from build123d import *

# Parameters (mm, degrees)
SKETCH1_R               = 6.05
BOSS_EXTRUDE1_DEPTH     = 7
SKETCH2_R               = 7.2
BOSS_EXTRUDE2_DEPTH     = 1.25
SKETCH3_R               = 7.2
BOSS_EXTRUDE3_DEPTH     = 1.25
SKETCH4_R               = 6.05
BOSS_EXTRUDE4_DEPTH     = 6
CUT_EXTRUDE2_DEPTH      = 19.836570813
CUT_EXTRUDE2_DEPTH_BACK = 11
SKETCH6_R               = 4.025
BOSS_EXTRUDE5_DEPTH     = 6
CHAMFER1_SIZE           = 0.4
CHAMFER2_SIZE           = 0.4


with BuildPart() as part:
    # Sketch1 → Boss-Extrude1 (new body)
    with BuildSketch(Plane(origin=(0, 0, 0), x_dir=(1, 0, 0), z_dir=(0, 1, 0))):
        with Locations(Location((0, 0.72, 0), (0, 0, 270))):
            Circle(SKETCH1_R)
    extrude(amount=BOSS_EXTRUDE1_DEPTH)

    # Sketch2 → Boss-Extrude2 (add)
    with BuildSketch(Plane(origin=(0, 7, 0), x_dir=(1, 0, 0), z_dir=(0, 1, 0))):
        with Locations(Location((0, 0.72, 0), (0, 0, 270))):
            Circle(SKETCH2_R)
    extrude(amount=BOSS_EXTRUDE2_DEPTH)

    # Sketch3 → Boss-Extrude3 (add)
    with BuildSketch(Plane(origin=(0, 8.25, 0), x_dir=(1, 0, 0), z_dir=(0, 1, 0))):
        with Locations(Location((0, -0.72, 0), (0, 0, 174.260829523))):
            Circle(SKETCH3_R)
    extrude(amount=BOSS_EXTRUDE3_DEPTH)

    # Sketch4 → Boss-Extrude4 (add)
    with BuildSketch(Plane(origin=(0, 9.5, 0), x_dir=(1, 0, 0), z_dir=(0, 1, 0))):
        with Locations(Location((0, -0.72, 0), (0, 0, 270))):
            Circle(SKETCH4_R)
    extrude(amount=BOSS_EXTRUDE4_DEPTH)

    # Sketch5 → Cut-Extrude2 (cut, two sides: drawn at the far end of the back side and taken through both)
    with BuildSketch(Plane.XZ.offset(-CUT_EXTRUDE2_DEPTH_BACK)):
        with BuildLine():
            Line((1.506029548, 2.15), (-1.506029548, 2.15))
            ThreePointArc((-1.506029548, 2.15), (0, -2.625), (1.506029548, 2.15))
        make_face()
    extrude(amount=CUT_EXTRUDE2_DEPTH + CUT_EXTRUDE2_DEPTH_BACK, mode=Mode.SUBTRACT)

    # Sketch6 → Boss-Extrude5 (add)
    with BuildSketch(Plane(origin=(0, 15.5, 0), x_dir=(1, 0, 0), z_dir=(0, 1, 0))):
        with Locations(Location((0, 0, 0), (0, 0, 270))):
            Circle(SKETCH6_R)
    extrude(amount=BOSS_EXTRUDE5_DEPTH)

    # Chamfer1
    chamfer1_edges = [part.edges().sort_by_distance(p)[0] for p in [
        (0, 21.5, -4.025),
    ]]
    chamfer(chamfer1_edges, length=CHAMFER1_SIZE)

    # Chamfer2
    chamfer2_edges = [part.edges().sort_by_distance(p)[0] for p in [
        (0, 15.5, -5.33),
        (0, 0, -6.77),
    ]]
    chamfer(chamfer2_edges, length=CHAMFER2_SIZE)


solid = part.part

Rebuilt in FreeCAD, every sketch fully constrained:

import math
import FreeCAD as App
import Part
import Sketcher

V = App.Vector


def edges_at(feature, points):
    """Names of the edges that pass closest to the given points."""
    edges = feature.Shape.Edges
    near = lambda p: min(range(len(edges)), key=lambda i: edges[i].distToShape(Part.Vertex(*p))[0])
    return sorted({f"Edge{near(p) + 1}" for p in points})

doc = App.newDocument("Part")
params = doc.addObject("Spreadsheet::Sheet", "Params")
for row, (alias, value) in enumerate([
    ("sketch1_diameter", "12.1 mm"),
    ("pad1_length", "7 mm"),
    ("sketch2_diameter", "14.4 mm"),
    ("pad2_length", "1.25 mm"),
    ("sketch3_diameter", "14.4 mm"),
    ("pad3_length", "1.25 mm"),
    ("sketch4_diameter", "12.1 mm"),
    ("pad4_length", "6 mm"),
    ("pocket1_length", "19.836571 mm"),
    ("pocket1_length2", "11 mm"),
    ("sketch6_diameter", "8.05 mm"),
    ("pad5_length", "6 mm"),
    ("chamfer_size", "0.4 mm"),
    ("chamfer2_size", "0.4 mm"),
], start=1):
    params.set(f"A{row}", alias)
    params.set(f"B{row}", "=" + value)
    params.setAlias(f"B{row}", alias)

body = doc.addObject("PartDesign::Body", "Body")

sketch1 = doc.addObject("Sketcher::SketchObject", "Sketch")
body.addObject(sketch1)
sketch1.AttachmentSupport = (doc.XZ_Plane, [""])
sketch1.MapMode = "FlatFace"
sketch1.addGeometry(Part.Circle(V(0, -0.72, 0), V(0, 0, 1), 6.05), False)
sketch1.addConstraint(Sketcher.Constraint("PointOnObject", 0, 3, -2))
sketch1.addConstraint(Sketcher.Constraint("Diameter", 0, 12.1))
sketch1.addConstraint(Sketcher.Constraint("DistanceY", 0, 3, -1, 1, 0.72))
sketch1.setExpression("Constraints[1]", "Params.sketch1_diameter")
pad1 = doc.addObject("PartDesign::Pad", "Pad")
body.addObject(pad1)
pad1.Profile = sketch1
pad1.setExpression("Length", "Params.pad1_length")
pad1.Reversed = True

sketch2 = doc.addObject("Sketcher::SketchObject", "Sketch001")
body.addObject(sketch2)
sketch2.AttachmentSupport = (doc.XZ_Plane, [""])
sketch2.MapMode = "FlatFace"
sketch2.AttachmentOffset = App.Placement(V(0, 0, -7), App.Rotation())
sketch2.addGeometry(Part.Circle(V(0, -0.72, 0), V(0, 0, 1), 7.2), False)
sketch2.addConstraint(Sketcher.Constraint("PointOnObject", 0, 3, -2))
sketch2.addConstraint(Sketcher.Constraint("Diameter", 0, 14.4))
sketch2.addConstraint(Sketcher.Constraint("DistanceY", 0, 3, -1, 1, 0.72))
sketch2.setExpression("Constraints[1]", "Params.sketch2_diameter")
pad2 = doc.addObject("PartDesign::Pad", "Pad001")
body.addObject(pad2)
pad2.Profile = sketch2
pad2.setExpression("Length", "Params.pad2_length")
pad2.Reversed = True

sketch3 = doc.addObject("Sketcher::SketchObject", "Sketch002")
body.addObject(sketch3)
sketch3.AttachmentSupport = (doc.XZ_Plane, [""])
sketch3.MapMode = "FlatFace"
sketch3.AttachmentOffset = App.Placement(V(0, 0, -8.25), App.Rotation())
sketch3.addGeometry(Part.Circle(V(0, 0.72, 0), V(0, 0, 1), 7.2), False)
sketch3.addConstraint(Sketcher.Constraint("PointOnObject", 0, 3, -2))
sketch3.addConstraint(Sketcher.Constraint("Diameter", 0, 14.4))
sketch3.addConstraint(Sketcher.Constraint("DistanceY", -1, 1, 0, 3, 0.72))
sketch3.setExpression("Constraints[1]", "Params.sketch3_diameter")
pad3 = doc.addObject("PartDesign::Pad", "Pad002")
body.addObject(pad3)
pad3.Profile = sketch3
pad3.setExpression("Length", "Params.pad3_length")
pad3.Reversed = True

sketch4 = doc.addObject("Sketcher::SketchObject", "Sketch003")
body.addObject(sketch4)
sketch4.AttachmentSupport = (doc.XZ_Plane, [""])
sketch4.MapMode = "FlatFace"
sketch4.AttachmentOffset = App.Placement(V(0, 0, -9.5), App.Rotation())
sketch4.addGeometry(Part.Circle(V(0, 0.72, 0), V(0, 0, 1), 6.05), False)
sketch4.addConstraint(Sketcher.Constraint("PointOnObject", 0, 3, -2))
sketch4.addConstraint(Sketcher.Constraint("Diameter", 0, 12.1))
sketch4.addConstraint(Sketcher.Constraint("DistanceY", -1, 1, 0, 3, 0.72))
sketch4.setExpression("Constraints[1]", "Params.sketch4_diameter")
pad4 = doc.addObject("PartDesign::Pad", "Pad003")
body.addObject(pad4)
pad4.Profile = sketch4
pad4.setExpression("Length", "Params.pad4_length")
pad4.Reversed = True

sketch5 = doc.addObject("Sketcher::SketchObject", "Sketch004")
body.addObject(sketch5)
sketch5.AttachmentSupport = (doc.XZ_Plane, [""])
sketch5.MapMode = "FlatFace"
sketch5.addGeometry(Part.LineSegment(V(1.50603, 2.15, 0), V(-1.50603, 2.15, 0)), False)
sketch5.addGeometry(Part.ArcOfCircle(Part.Circle(V(0, 0, 0), V(0, 0, 1), 2.625), math.radians(125.01043), math.radians(414.98957)), False)
sketch5.addConstraint(Sketcher.Constraint("Coincident", 0, 1, 1, 2))
sketch5.addConstraint(Sketcher.Constraint("Coincident", 1, 1, 0, 2))
sketch5.addConstraint(Sketcher.Constraint("Horizontal", 0))
sketch5.addConstraint(Sketcher.Constraint("Coincident", 1, 3, -1, 1))
sketch5.addConstraint(Sketcher.Constraint("Radius", 1, 2.625))
sketch5.addConstraint(Sketcher.Constraint("DistanceY", -1, 1, 0, 1, 2.15))
pocket1 = doc.addObject("PartDesign::Pocket", "Pocket")
body.addObject(pocket1)
pocket1.Profile = sketch5
pocket1.Type = "TwoLengths"
pocket1.setExpression("Length", "Params.pocket1_length")
pocket1.setExpression("Length2", "Params.pocket1_length2")
pocket1.Reversed = True

sketch6 = doc.addObject("Sketcher::SketchObject", "Sketch005")
body.addObject(sketch6)
sketch6.AttachmentSupport = (doc.XZ_Plane, [""])
sketch6.MapMode = "FlatFace"
sketch6.AttachmentOffset = App.Placement(V(0, 0, -15.5), App.Rotation())
sketch6.addGeometry(Part.Circle(V(0, 0, 0), V(0, 0, 1), 4.025), False)
sketch6.addConstraint(Sketcher.Constraint("Coincident", 0, 3, -1, 1))
sketch6.addConstraint(Sketcher.Constraint("Diameter", 0, 8.05))
sketch6.setExpression("Constraints[1]", "Params.sketch6_diameter")
pad5 = doc.addObject("PartDesign::Pad", "Pad004")
body.addObject(pad5)
pad5.Profile = sketch6
pad5.setExpression("Length", "Params.pad5_length")
pad5.Reversed = True
doc.recompute()

chamfer = doc.addObject("PartDesign::Chamfer", "Chamfer")
body.addObject(chamfer)
chamfer.Base = (pad5, edges_at(pad5, [(0, 21.5, -4.025)]))
chamfer.setExpression("Size", "Params.chamfer_size")
doc.recompute()

chamfer2 = doc.addObject("PartDesign::Chamfer", "Chamfer001")
body.addObject(chamfer2)
chamfer2.Base = (chamfer, edges_at(chamfer, [(0, 15.5, -5.33), (0, 0, -6.77)]))
chamfer2.setExpression("Size", "Params.chamfer2_size")

doc.recompute()
